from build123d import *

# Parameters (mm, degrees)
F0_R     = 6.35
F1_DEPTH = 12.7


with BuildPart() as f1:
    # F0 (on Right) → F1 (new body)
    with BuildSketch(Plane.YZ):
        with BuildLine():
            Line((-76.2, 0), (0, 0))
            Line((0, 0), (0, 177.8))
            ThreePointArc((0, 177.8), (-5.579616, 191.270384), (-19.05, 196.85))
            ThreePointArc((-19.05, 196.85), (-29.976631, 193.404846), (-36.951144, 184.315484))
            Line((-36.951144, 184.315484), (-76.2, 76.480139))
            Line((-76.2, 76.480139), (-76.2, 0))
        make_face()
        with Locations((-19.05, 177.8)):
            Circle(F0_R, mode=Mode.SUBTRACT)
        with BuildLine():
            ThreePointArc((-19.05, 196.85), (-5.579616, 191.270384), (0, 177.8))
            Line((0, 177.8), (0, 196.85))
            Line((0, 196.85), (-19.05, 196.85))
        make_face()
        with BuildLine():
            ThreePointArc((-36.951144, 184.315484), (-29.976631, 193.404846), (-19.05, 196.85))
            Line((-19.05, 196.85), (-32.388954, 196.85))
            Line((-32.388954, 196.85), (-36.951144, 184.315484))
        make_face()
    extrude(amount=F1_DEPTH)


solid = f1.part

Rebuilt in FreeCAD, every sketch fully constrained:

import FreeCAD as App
import Part
import Sketcher
from FreeCAD import Vector
Q = App.Units.Quantity


def add_polygon(sketch, points):
    """Adds a closed chain of lines whose ends are joined by coincident constraints."""
    first, n = sketch.GeometryCount, len(points)
    for a, b in zip(points, points[1:] + points[:1]):
        sketch.addGeometry(Part.LineSegment(App.Vector(*a, 0), App.Vector(*b, 0)), False)
    for i in range(n):
        sketch.addConstraint(Sketcher.Constraint("Coincident", first + i, 2, first + (i + 1) % n, 1))

doc = App.newDocument("Part")
params = doc.addObject("Spreadsheet::Sheet", "Params")
for row, (alias, value) in enumerate([
    ("sketch1_diameter", "0.5 in"),
    ("sketch1_width", "3 in"),
    ("sketch1_height", "7.75 in"),
    ("pad1_length", "0.5 in"),
], start=1):
    params.set(f"A{row}", alias)
    params.set(f"B{row}", "=" + value)
    params.setAlias(f"B{row}", alias)

body = doc.addObject("PartDesign::Body", "Body")

# Sketch on YZ plane
sketch1 = body.newObject("Sketcher::SketchObject", "Sketch")
sketch1.AttachmentSupport = (doc.getObject("YZ_Plane"), [""])
sketch1.MapMode = "FlatFace"
add_polygon(sketch1, [(-76, 0), (0, 0), (0, 197), (-32, 197), (-37, 184), (-76, 76)])  # lines 0-5
sketch1.addGeometry(Part.Circle(Vector(-19, 178, 0), Vector(0, 0, 1), 6), False)  # 6
sketch1.addConstraint(Sketcher.Constraint("Horizontal", 0))
sketch1.addConstraint(Sketcher.Constraint("Vertical", 1))
sketch1.addConstraint(Sketcher.Constraint("Horizontal", 2))
sketch1.addConstraint(Sketcher.Constraint("Vertical", 5))
sketch1.addConstraint(Sketcher.Constraint("Coincident", 0, 2, -1, 1))
sketch1.addConstraint(Sketcher.Constraint("Parallel", 3, 4))
sketch1.addConstraint(Sketcher.Constraint("Diameter", 6, Q("0.5 in")))
sketch1.addConstraint(Sketcher.Constraint("DistanceX", 0, 1, 0, 2, Q("3 in")))
sketch1.addConstraint(Sketcher.Constraint("DistanceY", -1, 1, 6, 3, Q("7 in")))
sketch1.addConstraint(Sketcher.Constraint("Angle", 3, Q("-109.999997 deg")))
sketch1.addConstraint(Sketcher.Constraint("DistanceY", 1, 1, 1, 2, Q("7.75 in")))
sketch1.addConstraint(Sketcher.Constraint("DistanceX", 6, 3, -1, 1, Q("0.75 in")))
sketch1.addConstraint(Sketcher.Constraint("DistanceY", 5, 2, 5, 1, 76.480139))
sketch1.addConstraint(Sketcher.Constraint("DistanceX", 3, 2, 2, 2, 4.56219))
sketch1.setExpression("Constraints[12]", "Params.sketch1_diameter")
sketch1.setExpression("Constraints[13]", "Params.sketch1_width")
sketch1.setExpression("Constraints[16]", "Params.sketch1_height")
pad1 = body.newObject("PartDesign::Pad", "Pad")
pad1.Profile = sketch1
pad1.setExpression("Length", "Params.pad1_length")

doc.recompute()
